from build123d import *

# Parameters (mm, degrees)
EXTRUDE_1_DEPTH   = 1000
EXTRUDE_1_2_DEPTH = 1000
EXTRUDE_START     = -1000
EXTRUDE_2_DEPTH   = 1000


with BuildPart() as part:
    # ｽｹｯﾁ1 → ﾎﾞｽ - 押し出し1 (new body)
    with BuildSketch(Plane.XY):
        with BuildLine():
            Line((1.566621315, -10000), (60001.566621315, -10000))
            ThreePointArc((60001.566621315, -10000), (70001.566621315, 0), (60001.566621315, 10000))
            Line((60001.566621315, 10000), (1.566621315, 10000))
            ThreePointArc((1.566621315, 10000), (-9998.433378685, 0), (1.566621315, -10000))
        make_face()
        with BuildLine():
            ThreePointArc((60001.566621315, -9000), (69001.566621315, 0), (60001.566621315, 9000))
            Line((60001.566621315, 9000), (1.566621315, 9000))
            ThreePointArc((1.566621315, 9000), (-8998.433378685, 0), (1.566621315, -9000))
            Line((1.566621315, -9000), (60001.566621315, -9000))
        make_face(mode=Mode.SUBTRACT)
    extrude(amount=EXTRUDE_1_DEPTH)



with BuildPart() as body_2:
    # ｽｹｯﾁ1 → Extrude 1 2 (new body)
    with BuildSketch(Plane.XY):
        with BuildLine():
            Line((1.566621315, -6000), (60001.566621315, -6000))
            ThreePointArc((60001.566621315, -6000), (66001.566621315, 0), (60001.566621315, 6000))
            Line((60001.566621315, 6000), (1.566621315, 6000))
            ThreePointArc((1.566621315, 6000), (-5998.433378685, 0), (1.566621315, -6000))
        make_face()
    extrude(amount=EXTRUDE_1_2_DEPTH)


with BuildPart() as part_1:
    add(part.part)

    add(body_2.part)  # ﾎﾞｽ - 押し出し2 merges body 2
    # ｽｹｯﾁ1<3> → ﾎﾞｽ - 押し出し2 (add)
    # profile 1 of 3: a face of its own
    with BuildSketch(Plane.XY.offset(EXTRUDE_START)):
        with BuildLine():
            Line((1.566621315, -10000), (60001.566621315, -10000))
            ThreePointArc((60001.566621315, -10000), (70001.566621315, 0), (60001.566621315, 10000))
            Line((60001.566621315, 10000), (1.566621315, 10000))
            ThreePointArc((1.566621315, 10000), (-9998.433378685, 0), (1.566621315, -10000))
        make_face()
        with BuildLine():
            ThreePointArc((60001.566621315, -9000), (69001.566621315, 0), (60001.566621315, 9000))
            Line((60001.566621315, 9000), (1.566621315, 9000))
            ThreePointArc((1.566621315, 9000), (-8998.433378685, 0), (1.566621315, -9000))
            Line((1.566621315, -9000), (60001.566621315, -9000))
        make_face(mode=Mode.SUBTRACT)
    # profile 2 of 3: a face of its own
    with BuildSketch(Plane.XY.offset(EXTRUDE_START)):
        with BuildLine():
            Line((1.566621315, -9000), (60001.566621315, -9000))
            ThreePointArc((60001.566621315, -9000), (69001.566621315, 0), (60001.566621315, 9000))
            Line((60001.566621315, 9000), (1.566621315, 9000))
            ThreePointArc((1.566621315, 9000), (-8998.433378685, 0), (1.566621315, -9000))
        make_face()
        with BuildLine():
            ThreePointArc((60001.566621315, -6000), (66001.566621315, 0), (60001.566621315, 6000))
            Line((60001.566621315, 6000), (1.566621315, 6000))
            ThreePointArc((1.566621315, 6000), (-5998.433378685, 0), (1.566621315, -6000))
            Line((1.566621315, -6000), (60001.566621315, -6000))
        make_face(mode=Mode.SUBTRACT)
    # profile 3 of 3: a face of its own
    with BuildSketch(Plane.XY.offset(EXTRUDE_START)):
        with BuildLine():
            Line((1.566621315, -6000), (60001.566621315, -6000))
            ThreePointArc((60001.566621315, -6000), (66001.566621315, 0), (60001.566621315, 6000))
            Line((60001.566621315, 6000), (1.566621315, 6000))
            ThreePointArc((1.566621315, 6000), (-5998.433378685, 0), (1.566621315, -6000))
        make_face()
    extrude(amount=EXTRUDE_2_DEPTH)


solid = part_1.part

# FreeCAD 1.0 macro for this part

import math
import FreeCAD as App
import Part
import Sketcher
from FreeCAD import Vector
Q = App.Units.Quantity

doc = App.newDocument("Part")
body = doc.addObject("PartDesign::Body", "Body")

# Sketch on XY plane
sketch1 = body.newObject("Sketcher::SketchObject", "Sketch")
sketch1.AttachmentSupport = (doc.getObject("XY_Plane"), [""])
sketch1.MapMode = "FlatFace"
sketch1.addGeometry([
    Part.LineSegment(Vector(2, -10000, 0), Vector(60002, -10000, 0)),  # 0
    Part.ArcOfCircle(Part.Circle(Vector(60002, 0, 0), Vector(0, 0, 1), 10000), math.radians(-90), math.radians(90)),  # 1
    Part.LineSegment(Vector(60002, 10000, 0), Vector(2, 10000, 0)),  # 2
    Part.ArcOfCircle(Part.Circle(Vector(2, 0, 0), Vector(0, 0, 1), 10000), math.radians(90), math.radians(270)),  # 3
    Part.ArcOfCircle(Part.Circle(Vector(60002, 0, 0), Vector(0, 0, 1), 9000), math.radians(-90), math.radians(90)),  # 4
    Part.LineSegment(Vector(60002, -9000, 0), Vector(2, -9000, 0)),  # 5
    Part.ArcOfCircle(Part.Circle(Vector(2, 0, 0), Vector(0, 0, 1), 9000), math.radians(90), math.radians(270)),  # 6
    Part.LineSegment(Vector(2, 9000, 0), Vector(60002, 9000, 0)),  # 7
], False)
sketch1.addConstraint([
    Sketcher.Constraint("Coincident", 0, 2, 1, 1),
    Sketcher.Constraint("Coincident", 1, 2, 2, 1),
    Sketcher.Constraint("Coincident", 2, 2, 3, 1),
    Sketcher.Constraint("Coincident", 3, 2, 0, 1),
    Sketcher.Constraint("Coincident", 4, 1, 5, 1),
    Sketcher.Constraint("Coincident", 5, 2, 6, 2),
    Sketcher.Constraint("Coincident", 6, 1, 7, 1),
    Sketcher.Constraint("Coincident", 7, 2, 4, 2),
    Sketcher.Constraint("Horizontal", 0),
    Sketcher.Constraint("Horizontal", 2),
    Sketcher.Constraint("Horizontal", 5),
    Sketcher.Constraint("Horizontal", 7),
    Sketcher.Constraint("Coincident", 4, 3, 1, 3),
    Sketcher.Constraint("PointOnObject", 1, 3, -1),
    Sketcher.Constraint("Vertical", 4, 3, 0, 2),
    Sketcher.Constraint("Vertical", 6, 3, 2, 2),
    Sketcher.Constraint("Equal", 0, 2),
    Sketcher.Constraint("Equal", 2, 5),
    Sketcher.Constraint("Equal", 5, 7),
    Sketcher.Constraint("Radius", 1, Q("10000 mm")),
    Sketcher.Constraint("Radius", 4, Q("9000 mm")),
    Sketcher.Constraint("DistanceX", 0, 1, 0, 2, Q("60000 mm")),
    Sketcher.Constraint("DistanceX", 3, 3, 1, 3, Q("60000 mm")),
    Sketcher.Constraint("DistanceX", 6, 3, 1, 3, Q("60000 mm")),
    Sketcher.Constraint("DistanceX", -1, 1, 1, 3, Q("60001.566621 mm")),
    Sketcher.Constraint("DistanceX", -1, 1, 5, 2, Q("1.566621 mm")),
    Sketcher.Constraint("DistanceX", -1, 1, 7, 2, Q("60001.566621 mm")),
])
pad1 = body.newObject("PartDesign::Pad", "Pad")
pad1.Profile = sketch1
pad1.Length = 1000
body2 = doc.addObject("PartDesign::Body", "Body001")

# Sketch on XY plane
sketch2 = body2.newObject("Sketcher::SketchObject", "Sketch001")
sketch2.AttachmentSupport = (doc.getObject("XY_Plane001"), [""])
sketch2.MapMode = "FlatFace"
sketch2.addGeometry([
    Part.LineSegment(Vector(2, -6000, 0), Vector(60002, -6000, 0)),
    Part.ArcOfCircle(Part.Circle(Vector(60002, 0, 0), Vector(0, 0, 1), 6000), math.radians(-90), math.radians(90)),
    Part.LineSegment(Vector(60002, 6000, 0), Vector(2, 6000, 0)),
    Part.ArcOfCircle(Part.Circle(Vector(2, 0, 0), Vector(0, 0, 1), 6000), math.radians(90), math.radians(270)),
], False)
sketch2.addConstraint([
    Sketcher.Constraint("Coincident", 0, 2, 1, 1),
    Sketcher.Constraint("Coincident", 1, 2, 2, 1),
    Sketcher.Constraint("Coincident", 2, 2, 3, 1),
    Sketcher.Constraint("Coincident", 3, 2, 0, 1),
    Sketcher.Constraint("Horizontal", 0),
    Sketcher.Constraint("Horizontal", 2),
    Sketcher.Constraint("PointOnObject", 1, 3, -1),
    Sketcher.Constraint("Vertical", 1, 3, 0, 2),
    Sketcher.Constraint("Vertical", 3, 3, 2, 2),
    Sketcher.Constraint("Equal", 0, 2),
    Sketcher.Constraint("Radius", 1, Q("6000 mm")),
    Sketcher.Constraint("DistanceX", 0, 1, 0, 2, Q("60000 mm")),
    Sketcher.Constraint("DistanceX", 3, 3, 1, 3, Q("60000 mm")),
    Sketcher.Constraint("DistanceX", -1, 1, 1, 3, Q("60001.566621 mm")),
])
pad2 = body2.newObject("PartDesign::Pad", "Pad001")
pad2.Profile = sketch2
pad2.Length = 1000
body.AllowCompound = True
doc.recompute()

boolean = body.newObject("PartDesign::Boolean", "Boolean")
boolean.Type = "Fuse"
boolean.addObjects([body2])

# Sketch on XY plane
sketch3 = body.newObject("Sketcher::SketchObject", "Sketch002")
sketch3.AttachmentSupport = (doc.getObject("XY_Plane"), [""])
sketch3.MapMode = "FlatFace"
sketch3.AttachmentOffset = App.Placement(Vector(0, 0, -1000), App.Rotation())
sketch3.addGeometry([
    Part.LineSegment(Vector(2, -10000, 0), Vector(60002, -10000, 0)),
    Part.ArcOfCircle(Part.Circle(Vector(60002, 0, 0), Vector(0, 0, 1), 10000), math.radians(-90), math.radians(90)),
    Part.LineSegment(Vector(60002, 10000, 0), Vector(2, 10000, 0)),
    Part.ArcOfCircle(Part.Circle(Vector(2, 0, 0), Vector(0, 0, 1), 10000), math.radians(90), math.radians(270)),
], False)
sketch3.addConstraint([
    Sketcher.Constraint("Coincident", 0, 2, 1, 1),
    Sketcher.Constraint("Coincident", 1, 2, 2, 1),
    Sketcher.Constraint("Coincident", 2, 2, 3, 1),
    Sketcher.Constraint("Coincident", 3, 2, 0, 1),
    Sketcher.Constraint("Horizontal", 0),
    Sketcher.Constraint("Horizontal", 2),
    Sketcher.Constraint("PointOnObject", 1, 3, -1),
    Sketcher.Constraint("Vertical", 1, 3, 0, 2),
    Sketcher.Constraint("Vertical", 3, 3, 2, 2),
    Sketcher.Constraint("Equal", 0, 2),
    Sketcher.Constraint("Radius", 1, Q("10000 mm")),
    Sketcher.Constraint("DistanceX", 0, 1, 0, 2, Q("60000 mm")),
    Sketcher.Constraint("DistanceX", 3, 3, 1, 3, Q("60000 mm")),
    Sketcher.Constraint("DistanceX", -1, 1, 1, 3, Q("60001.566621 mm")),
])
pad3 = body.newObject("PartDesign::Pad", "Pad002")
pad3.Profile = sketch3
pad3.Length = 1000

doc.recompute()
